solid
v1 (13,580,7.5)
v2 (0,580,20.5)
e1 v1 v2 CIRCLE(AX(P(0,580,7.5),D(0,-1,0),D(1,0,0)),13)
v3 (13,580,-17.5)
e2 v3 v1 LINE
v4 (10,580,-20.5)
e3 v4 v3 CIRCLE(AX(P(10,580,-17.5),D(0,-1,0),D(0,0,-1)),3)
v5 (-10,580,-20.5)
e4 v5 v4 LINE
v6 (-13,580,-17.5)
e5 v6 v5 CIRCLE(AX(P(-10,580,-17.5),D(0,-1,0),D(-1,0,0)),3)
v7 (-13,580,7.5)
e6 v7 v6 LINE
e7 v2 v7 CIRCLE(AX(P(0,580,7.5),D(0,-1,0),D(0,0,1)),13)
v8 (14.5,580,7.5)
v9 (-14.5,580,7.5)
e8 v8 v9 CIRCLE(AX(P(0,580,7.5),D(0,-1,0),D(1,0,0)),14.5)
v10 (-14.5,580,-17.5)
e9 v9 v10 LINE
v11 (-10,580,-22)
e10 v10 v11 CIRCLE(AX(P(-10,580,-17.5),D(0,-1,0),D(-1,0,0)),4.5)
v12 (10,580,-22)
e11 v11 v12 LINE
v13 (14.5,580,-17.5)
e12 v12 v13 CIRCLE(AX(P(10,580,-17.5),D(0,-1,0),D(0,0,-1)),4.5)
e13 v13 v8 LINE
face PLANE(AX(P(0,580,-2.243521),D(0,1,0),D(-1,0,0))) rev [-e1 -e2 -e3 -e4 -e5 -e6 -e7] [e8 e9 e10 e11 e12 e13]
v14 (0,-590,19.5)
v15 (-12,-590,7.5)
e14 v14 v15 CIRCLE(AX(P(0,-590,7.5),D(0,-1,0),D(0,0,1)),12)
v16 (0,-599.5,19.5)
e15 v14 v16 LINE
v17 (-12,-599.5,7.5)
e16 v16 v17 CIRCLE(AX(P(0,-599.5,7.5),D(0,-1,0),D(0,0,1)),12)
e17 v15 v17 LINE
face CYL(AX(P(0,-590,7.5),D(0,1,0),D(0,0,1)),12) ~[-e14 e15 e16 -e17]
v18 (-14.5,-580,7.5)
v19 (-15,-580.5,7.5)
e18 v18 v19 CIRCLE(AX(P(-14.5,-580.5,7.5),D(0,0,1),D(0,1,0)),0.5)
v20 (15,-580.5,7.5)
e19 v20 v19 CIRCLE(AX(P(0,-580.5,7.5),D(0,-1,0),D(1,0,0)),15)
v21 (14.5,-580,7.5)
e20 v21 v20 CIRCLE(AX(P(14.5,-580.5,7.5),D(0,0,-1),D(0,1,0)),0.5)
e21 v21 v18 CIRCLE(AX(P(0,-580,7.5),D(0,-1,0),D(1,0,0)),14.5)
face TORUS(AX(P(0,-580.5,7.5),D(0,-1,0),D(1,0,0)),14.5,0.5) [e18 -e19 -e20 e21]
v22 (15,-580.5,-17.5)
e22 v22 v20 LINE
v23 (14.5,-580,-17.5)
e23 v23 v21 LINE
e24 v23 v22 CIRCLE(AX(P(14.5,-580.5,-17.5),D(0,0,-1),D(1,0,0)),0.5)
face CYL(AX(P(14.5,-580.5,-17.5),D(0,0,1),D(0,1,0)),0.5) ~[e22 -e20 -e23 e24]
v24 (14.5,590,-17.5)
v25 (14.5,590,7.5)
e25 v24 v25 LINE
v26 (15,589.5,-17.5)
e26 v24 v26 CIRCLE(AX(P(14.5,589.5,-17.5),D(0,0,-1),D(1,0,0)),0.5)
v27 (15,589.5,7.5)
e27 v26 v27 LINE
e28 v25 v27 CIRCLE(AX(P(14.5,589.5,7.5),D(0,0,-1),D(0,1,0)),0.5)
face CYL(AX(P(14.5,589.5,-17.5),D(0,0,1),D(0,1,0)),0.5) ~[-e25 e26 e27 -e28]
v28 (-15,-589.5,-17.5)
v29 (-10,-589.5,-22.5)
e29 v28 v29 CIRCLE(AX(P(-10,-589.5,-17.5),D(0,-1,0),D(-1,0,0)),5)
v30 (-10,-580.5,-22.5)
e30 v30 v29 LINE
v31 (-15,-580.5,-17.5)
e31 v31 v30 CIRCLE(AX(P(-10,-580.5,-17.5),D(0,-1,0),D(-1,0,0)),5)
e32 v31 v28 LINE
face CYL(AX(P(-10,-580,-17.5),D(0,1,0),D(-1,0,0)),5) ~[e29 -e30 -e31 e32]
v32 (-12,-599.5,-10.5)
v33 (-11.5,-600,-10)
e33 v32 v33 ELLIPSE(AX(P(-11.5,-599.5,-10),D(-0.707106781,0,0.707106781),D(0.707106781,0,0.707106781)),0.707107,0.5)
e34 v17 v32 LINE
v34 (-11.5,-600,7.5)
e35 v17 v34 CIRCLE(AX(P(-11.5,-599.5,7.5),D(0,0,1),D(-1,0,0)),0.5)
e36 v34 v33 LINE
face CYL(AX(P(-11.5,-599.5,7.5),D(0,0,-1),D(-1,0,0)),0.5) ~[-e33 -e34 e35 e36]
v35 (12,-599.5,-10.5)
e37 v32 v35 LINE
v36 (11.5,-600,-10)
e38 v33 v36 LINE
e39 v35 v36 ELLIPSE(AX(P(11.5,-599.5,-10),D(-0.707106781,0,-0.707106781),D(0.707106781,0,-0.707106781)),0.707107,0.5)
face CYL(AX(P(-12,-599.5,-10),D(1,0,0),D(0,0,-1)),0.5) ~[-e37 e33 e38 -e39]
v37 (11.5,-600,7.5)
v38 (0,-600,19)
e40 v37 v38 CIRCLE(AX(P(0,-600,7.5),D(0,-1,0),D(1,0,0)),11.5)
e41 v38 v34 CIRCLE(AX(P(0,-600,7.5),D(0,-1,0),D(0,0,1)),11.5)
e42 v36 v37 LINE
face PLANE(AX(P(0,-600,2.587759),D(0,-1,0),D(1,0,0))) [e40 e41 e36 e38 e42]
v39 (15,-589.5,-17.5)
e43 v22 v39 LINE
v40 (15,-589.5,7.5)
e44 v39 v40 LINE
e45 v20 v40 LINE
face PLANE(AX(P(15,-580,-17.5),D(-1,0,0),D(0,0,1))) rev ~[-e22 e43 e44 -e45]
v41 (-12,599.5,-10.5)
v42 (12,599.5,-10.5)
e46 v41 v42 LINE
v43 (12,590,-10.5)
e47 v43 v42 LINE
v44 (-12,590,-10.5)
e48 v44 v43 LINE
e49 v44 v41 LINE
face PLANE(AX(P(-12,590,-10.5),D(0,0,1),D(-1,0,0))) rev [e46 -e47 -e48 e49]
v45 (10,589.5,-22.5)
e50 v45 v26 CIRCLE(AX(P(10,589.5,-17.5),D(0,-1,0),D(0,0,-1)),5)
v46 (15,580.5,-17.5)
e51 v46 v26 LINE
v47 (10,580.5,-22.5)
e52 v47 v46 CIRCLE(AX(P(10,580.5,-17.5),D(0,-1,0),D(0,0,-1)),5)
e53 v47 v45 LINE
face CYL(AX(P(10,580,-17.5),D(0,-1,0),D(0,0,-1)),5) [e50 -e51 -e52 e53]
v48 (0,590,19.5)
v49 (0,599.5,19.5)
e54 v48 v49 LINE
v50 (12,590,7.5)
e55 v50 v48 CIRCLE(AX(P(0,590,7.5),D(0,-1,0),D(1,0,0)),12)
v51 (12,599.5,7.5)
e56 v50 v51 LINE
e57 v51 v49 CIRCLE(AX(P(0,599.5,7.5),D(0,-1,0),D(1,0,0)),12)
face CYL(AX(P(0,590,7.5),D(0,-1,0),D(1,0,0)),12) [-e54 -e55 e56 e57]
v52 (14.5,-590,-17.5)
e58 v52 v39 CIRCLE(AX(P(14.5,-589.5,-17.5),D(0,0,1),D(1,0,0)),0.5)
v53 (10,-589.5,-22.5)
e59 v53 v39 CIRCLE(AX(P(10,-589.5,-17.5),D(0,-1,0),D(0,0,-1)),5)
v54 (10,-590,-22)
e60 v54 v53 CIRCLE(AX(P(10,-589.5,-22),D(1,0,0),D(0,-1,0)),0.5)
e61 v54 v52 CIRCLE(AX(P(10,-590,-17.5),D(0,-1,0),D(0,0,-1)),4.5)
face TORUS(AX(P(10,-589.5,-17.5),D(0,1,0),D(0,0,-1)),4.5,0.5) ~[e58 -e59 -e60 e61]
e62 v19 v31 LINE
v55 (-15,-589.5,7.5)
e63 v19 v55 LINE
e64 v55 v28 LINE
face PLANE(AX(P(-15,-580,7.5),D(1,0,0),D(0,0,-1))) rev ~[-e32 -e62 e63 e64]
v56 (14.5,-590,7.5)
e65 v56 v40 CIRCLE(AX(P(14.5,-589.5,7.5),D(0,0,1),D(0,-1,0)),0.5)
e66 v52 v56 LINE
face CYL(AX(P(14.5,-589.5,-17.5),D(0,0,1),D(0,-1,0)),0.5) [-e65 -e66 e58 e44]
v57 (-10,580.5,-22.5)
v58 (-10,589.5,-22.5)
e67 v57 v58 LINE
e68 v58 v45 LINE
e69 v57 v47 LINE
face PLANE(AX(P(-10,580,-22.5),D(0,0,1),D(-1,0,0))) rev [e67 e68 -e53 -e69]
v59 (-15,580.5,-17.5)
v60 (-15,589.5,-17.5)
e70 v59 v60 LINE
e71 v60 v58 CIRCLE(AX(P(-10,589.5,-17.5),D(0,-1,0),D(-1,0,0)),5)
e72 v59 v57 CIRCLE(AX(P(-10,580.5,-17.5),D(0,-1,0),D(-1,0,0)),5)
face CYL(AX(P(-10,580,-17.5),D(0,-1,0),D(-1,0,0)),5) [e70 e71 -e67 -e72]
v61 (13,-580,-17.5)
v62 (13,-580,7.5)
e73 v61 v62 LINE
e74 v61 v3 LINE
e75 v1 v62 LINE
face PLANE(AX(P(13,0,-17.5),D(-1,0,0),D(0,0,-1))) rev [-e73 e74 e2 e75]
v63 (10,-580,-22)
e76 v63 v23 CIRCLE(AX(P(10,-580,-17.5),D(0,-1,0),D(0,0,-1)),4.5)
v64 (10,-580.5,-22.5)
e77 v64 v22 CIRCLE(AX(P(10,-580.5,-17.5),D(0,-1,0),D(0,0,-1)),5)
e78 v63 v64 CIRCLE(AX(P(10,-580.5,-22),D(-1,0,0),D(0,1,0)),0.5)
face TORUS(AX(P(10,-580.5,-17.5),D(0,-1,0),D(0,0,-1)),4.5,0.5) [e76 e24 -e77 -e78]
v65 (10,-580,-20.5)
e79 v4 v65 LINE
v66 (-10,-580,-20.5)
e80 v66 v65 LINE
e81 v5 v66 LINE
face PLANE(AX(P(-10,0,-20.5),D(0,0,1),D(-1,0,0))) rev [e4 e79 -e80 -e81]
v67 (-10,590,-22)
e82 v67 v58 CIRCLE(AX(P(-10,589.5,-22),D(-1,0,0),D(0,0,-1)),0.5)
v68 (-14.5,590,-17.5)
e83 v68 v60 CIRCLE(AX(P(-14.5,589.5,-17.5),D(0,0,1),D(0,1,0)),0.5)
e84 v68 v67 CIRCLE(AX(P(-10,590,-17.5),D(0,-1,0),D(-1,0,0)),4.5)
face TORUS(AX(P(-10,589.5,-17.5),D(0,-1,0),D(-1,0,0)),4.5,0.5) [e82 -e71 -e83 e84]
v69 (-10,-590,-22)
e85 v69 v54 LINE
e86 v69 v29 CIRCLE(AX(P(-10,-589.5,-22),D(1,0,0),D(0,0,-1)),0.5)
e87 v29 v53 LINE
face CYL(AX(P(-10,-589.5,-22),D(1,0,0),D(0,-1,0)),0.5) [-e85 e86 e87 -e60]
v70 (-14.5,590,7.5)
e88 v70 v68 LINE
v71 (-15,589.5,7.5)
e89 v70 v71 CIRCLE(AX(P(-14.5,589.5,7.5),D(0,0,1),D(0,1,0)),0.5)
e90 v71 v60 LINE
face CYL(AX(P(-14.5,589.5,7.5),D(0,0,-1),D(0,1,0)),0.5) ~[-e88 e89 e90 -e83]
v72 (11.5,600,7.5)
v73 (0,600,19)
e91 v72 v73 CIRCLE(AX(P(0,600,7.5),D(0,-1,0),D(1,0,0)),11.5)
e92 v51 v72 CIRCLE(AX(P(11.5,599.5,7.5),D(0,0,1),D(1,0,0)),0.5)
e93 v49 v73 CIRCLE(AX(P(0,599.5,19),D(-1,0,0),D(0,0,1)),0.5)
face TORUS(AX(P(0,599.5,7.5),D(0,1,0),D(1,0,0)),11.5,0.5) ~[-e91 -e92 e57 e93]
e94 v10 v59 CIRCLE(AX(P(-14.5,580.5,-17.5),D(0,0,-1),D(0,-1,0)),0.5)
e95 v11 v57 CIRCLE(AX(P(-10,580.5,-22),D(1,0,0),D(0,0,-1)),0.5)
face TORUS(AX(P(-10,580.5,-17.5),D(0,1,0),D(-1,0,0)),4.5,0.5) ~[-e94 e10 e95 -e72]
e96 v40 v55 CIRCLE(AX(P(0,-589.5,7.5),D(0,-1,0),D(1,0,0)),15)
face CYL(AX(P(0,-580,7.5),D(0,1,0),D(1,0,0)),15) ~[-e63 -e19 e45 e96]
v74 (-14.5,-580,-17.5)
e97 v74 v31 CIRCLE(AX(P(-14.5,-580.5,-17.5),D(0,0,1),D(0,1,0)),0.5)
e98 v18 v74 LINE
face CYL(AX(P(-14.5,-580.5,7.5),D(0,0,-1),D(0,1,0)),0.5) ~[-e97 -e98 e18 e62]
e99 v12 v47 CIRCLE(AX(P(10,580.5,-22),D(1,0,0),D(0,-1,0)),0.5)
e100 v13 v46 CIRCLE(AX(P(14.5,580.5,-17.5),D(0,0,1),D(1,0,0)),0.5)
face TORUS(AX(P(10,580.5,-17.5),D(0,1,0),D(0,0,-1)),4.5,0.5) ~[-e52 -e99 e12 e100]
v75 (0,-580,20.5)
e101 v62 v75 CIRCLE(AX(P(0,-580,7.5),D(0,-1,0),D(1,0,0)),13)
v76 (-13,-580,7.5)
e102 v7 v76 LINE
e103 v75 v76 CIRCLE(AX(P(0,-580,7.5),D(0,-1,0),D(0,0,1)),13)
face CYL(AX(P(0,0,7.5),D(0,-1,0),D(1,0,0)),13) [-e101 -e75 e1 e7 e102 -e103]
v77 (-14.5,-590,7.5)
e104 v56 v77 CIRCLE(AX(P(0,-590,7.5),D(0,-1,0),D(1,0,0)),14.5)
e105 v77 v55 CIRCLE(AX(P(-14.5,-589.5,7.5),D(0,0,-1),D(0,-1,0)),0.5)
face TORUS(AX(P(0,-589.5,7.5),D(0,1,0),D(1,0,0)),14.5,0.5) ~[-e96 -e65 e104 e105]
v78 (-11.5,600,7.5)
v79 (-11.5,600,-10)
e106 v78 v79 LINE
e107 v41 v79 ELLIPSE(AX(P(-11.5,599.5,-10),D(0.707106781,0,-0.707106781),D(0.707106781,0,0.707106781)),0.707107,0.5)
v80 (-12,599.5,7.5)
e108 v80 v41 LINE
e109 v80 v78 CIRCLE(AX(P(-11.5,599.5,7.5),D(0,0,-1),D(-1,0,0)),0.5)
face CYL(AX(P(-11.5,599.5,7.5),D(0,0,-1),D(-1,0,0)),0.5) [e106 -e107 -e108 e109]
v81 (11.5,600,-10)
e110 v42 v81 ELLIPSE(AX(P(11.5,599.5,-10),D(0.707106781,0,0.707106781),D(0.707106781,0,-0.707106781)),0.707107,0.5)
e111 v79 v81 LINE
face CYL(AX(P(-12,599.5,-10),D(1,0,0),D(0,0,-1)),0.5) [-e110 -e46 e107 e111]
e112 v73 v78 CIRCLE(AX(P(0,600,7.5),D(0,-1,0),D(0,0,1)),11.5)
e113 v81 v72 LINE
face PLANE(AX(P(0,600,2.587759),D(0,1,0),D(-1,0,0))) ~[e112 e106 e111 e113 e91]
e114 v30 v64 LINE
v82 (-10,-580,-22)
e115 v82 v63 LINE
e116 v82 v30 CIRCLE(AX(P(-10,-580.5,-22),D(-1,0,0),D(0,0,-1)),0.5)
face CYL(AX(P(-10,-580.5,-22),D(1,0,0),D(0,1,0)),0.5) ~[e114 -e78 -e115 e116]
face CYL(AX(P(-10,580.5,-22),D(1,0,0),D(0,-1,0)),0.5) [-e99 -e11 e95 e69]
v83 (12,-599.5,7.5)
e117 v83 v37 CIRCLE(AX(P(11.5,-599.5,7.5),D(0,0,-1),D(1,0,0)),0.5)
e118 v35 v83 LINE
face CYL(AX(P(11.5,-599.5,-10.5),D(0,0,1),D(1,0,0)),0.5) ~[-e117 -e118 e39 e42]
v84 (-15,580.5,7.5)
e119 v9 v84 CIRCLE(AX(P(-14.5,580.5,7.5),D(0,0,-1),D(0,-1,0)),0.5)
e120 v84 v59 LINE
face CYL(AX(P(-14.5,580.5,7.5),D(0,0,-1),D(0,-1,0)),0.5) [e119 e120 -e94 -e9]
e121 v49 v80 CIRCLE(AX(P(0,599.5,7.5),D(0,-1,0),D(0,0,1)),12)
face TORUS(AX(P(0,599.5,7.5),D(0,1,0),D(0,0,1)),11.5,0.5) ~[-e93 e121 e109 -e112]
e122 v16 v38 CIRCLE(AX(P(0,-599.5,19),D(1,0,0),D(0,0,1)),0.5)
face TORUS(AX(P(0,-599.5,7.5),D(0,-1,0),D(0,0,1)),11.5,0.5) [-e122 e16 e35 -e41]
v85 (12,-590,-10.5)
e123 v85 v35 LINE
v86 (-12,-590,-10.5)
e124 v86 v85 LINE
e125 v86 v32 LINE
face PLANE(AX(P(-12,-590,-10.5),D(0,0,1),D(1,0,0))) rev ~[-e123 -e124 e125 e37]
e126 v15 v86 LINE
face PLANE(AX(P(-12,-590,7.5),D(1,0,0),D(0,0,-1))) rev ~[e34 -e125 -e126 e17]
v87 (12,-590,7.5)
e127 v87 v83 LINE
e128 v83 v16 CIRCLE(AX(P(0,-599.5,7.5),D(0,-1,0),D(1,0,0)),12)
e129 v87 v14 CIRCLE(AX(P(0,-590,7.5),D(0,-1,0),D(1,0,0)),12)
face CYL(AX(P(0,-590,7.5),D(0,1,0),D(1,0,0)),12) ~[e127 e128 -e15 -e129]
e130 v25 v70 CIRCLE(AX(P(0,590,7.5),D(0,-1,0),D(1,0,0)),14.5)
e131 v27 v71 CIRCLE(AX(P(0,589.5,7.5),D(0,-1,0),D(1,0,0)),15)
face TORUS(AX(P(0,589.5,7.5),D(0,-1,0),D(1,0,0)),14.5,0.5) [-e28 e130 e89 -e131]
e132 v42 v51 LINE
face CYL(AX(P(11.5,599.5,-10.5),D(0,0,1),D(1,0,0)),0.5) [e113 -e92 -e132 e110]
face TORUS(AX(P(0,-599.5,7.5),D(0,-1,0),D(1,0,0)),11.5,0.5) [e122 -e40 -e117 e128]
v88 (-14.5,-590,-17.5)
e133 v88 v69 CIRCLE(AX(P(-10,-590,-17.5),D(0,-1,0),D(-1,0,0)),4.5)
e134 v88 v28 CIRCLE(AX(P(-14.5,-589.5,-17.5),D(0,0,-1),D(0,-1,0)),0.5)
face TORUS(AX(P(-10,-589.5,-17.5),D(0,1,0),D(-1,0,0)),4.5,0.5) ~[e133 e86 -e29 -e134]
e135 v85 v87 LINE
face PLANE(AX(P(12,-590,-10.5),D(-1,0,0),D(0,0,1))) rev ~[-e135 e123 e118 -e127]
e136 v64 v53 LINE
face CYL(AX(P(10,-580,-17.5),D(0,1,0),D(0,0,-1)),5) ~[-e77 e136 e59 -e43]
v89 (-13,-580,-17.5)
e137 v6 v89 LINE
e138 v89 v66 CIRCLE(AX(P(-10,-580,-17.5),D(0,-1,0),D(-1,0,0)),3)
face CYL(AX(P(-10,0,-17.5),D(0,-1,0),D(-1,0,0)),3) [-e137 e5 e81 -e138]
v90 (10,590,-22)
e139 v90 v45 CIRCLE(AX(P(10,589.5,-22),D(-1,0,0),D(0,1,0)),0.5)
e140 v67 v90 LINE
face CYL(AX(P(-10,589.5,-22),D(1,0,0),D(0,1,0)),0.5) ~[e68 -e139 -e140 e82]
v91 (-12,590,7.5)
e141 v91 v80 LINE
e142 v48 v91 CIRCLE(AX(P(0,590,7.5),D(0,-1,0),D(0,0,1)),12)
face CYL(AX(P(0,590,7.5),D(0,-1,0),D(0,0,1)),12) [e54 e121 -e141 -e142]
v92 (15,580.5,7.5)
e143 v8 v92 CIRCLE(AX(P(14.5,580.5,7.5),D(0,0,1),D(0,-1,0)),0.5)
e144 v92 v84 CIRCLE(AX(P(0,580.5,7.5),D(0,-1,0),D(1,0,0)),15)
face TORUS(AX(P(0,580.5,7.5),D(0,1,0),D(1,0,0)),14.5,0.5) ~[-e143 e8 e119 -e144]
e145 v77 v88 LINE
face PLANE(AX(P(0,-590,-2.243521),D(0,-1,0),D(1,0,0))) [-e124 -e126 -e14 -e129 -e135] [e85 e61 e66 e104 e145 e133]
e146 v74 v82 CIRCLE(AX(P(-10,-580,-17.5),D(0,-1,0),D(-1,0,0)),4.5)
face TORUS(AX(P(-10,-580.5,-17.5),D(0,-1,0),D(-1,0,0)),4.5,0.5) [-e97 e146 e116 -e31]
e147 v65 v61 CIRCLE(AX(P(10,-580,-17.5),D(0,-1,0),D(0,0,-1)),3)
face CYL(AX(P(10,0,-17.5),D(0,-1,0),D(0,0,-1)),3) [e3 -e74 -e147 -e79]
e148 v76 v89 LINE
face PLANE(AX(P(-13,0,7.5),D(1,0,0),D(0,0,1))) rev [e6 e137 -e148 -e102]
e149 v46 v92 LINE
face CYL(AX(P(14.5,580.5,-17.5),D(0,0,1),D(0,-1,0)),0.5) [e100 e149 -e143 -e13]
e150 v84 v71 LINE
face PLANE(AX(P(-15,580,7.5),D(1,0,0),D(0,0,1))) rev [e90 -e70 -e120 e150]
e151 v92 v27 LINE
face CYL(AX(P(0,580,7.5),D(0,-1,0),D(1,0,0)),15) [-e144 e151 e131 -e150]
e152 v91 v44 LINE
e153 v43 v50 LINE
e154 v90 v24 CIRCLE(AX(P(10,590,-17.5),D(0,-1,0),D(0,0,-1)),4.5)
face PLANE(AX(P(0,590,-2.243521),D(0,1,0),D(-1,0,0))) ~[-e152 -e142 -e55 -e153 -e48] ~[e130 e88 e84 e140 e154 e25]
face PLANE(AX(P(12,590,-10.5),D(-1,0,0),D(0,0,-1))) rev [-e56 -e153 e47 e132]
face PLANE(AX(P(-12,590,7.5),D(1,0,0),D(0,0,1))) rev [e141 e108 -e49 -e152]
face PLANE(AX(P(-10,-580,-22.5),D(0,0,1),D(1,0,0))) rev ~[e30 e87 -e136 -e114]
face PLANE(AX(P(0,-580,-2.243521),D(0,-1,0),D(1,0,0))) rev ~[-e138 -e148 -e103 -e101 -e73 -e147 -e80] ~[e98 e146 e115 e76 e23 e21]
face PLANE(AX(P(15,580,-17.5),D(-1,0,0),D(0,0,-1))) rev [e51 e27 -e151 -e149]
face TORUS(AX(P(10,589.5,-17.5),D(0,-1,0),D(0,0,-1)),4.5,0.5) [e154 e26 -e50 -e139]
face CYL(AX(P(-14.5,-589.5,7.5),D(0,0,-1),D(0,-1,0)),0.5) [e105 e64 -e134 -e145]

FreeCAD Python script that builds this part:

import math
import FreeCAD as App
import Part
import Sketcher

V = App.Vector
Q = App.Units.Quantity


def edges_at(feature, points):
    """Names of the edges that pass closest to the given points."""
    edges = feature.Shape.Edges
    near = lambda p: min(range(len(edges)), key=lambda i: edges[i].distToShape(Part.Vertex(*p))[0])
    return sorted({f"Edge{near(p) + 1}" for p in points})

doc = App.newDocument("Part")
body = doc.addObject("PartDesign::Body", "Body")

# Sketch on XZ plane
sketch1 = body.newObject("Sketcher::SketchObject", "Sketch")
sketch1.AttachmentSupport = (doc.getObject("XZ_Plane"), [""])
sketch1.MapMode = "FlatFace"
sketch1.addGeometry([
    Part.LineSegment(V(13, -17.5, 0), V(13, 7.5, 0)),  # 0
    Part.ArcOfCircle(Part.Circle(V(0, 7.5, 0), V(0, 0, 1), 13), math.radians(0), math.radians(90)),  # 1
    Part.ArcOfCircle(Part.Circle(V(0, 7.5, 0), V(0, 0, 1), 13), math.radians(90), math.radians(180)),  # 2
    Part.LineSegment(V(-13, 7.5, 0), V(-13, -17.5, 0)),  # 3
    Part.ArcOfCircle(Part.Circle(V(-10, -17.5, 0), V(0, 0, 1), 3), math.radians(180), math.radians(270)),  # 4
    Part.LineSegment(V(-10, -20.5, 0), V(10, -20.5, 0)),  # 5
    Part.ArcOfCircle(Part.Circle(V(10, -17.5, 0), V(0, 0, 1), 3), math.radians(-90), math.radians(0)),  # 6
], False)
sketch1.addConstraint([
    Sketcher.Constraint("Tangent", 0, 2, 1, 1),
    Sketcher.Constraint("Tangent", 1, 2, 2, 1),
    Sketcher.Constraint("Tangent", 2, 2, 3, 1),
    Sketcher.Constraint("Tangent", 3, 2, 4, 1),
    Sketcher.Constraint("Tangent", 4, 2, 5, 1),
    Sketcher.Constraint("Tangent", 5, 2, 6, 1),
    Sketcher.Constraint("Tangent", 6, 2, 0, 1),
    Sketcher.Constraint("Vertical", 0),
    Sketcher.Constraint("Vertical", 3),
    Sketcher.Constraint("Horizontal", 5),
    Sketcher.Constraint("Equal", 1, 2),
    Sketcher.Constraint("Equal", 4, 6),
    Sketcher.Constraint("PointOnObject", 1, 3, -2),
    Sketcher.Constraint("PointOnObject", 1, 2, -2),
    Sketcher.Constraint("Radius", 1, Q("13 mm")),
    Sketcher.Constraint("Radius", 4, Q("3 mm")),
    Sketcher.Constraint("DistanceY", 0, 1, 0, 2, Q("25 mm")),
    Sketcher.Constraint("DistanceY", -1, 1, 1, 3, Q("7.5 mm")),
])
pad1 = body.newObject("PartDesign::Pad", "Pad")
pad1.Profile = sketch1
pad1.Length = 580

# Sketch on XZ plane
sketch2 = body.newObject("Sketcher::SketchObject", "Sketch001")
sketch2.AttachmentSupport = (doc.getObject("XZ_Plane"), [""])
sketch2.MapMode = "FlatFace"
sketch2.AttachmentOffset = App.Placement(V(0, 0, 580), App.Rotation())
sketch2.addGeometry([
    Part.ArcOfCircle(Part.Circle(V(10, -18, 0), V(0, 0, 1), 5), math.radians(-90), math.radians(0)),  # 0
    Part.LineSegment(V(15, -18, 0), V(15, 8, 0)),  # 1
    Part.ArcOfCircle(Part.Circle(V(0, 8, 0), V(0, 0, 1), 15), math.radians(0), math.radians(180)),  # 2
    Part.LineSegment(V(-15, 8, 0), V(-15, -18, 0)),  # 3
    Part.ArcOfCircle(Part.Circle(V(-10, -18, 0), V(0, 0, 1), 5), math.radians(180), math.radians(270)),  # 4
    Part.LineSegment(V(-10, -22, 0), V(10, -22, 0)),  # 5
], False)
sketch2.addConstraint([
    Sketcher.Constraint("Tangent", 0, 2, 1, 1),
    Sketcher.Constraint("Tangent", 1, 2, 2, 1),
    Sketcher.Constraint("Tangent", 2, 2, 3, 1),
    Sketcher.Constraint("Tangent", 3, 2, 4, 1),
    Sketcher.Constraint("Tangent", 4, 2, 5, 1),
    Sketcher.Constraint("Tangent", 5, 2, 0, 1),
    Sketcher.Constraint("Vertical", 1),
    Sketcher.Constraint("Vertical", 3),
    Sketcher.Constraint("Horizontal", 5),
    Sketcher.Constraint("Equal", 0, 4),
    Sketcher.Constraint("PointOnObject", 2, 3, -2),
    Sketcher.Constraint("Radius", 0, Q("5 mm")),
    Sketcher.Constraint("Radius", 2, Q("15 mm")),
    Sketcher.Constraint("DistanceY", 1, 1, 1, 2, Q("25 mm")),
    Sketcher.Constraint("DistanceY", 0, 3, -1, 1, Q("17.5 mm")),
])
pad2 = body.newObject("PartDesign::Pad", "Pad001")
pad2.Profile = sketch2
pad2.Length = 10

# Sketch on XZ plane
sketch3 = body.newObject("Sketcher::SketchObject", "Sketch002")
sketch3.AttachmentSupport = (doc.getObject("XZ_Plane"), [""])
sketch3.MapMode = "FlatFace"
sketch3.AttachmentOffset = App.Placement(V(0, 0, 590), App.Rotation())
sketch3.addGeometry([
    Part.LineSegment(V(-12, 8, 0), V(-12, -10, 0)),  # 0
    Part.LineSegment(V(-12, -10, 0), V(12, -10, 0)),  # 1
    Part.LineSegment(V(12, -10, 0), V(12, 8, 0)),  # 2
    Part.ArcOfCircle(Part.Circle(V(0, 8, 0), V(0, 0, 1), 12), math.radians(0), math.radians(90)),  # 3
    Part.ArcOfCircle(Part.Circle(V(0, 8, 0), V(0, 0, 1), 12), math.radians(90), math.radians(180)),  # 4
], False)
sketch3.addConstraint([
    Sketcher.Constraint("Coincident", 0, 2, 1, 1),
    Sketcher.Constraint("Coincident", 1, 2, 2, 1),
    Sketcher.Constraint("Tangent", 2, 2, 3, 1),
    Sketcher.Constraint("Tangent", 3, 2, 4, 1),
    Sketcher.Constraint("Tangent", 4, 2, 0, 1),
    Sketcher.Constraint("Vertical", 0),
    Sketcher.Constraint("Horizontal", 1),
    Sketcher.Constraint("Vertical", 2),
    Sketcher.Constraint("Equal", 3, 4),
    Sketcher.Constraint("PointOnObject", 3, 3, -2),
    Sketcher.Constraint("PointOnObject", 3, 2, -2),
    Sketcher.Constraint("Radius", 3, Q("12 mm")),
    Sketcher.Constraint("DistanceY", 0, 2, 0, 1, Q("18 mm")),
    Sketcher.Constraint("DistanceY", -1, 1, 3, 3, Q("7.5 mm")),
])
pad3 = body.newObject("PartDesign::Pad", "Pad002")
pad3.Profile = sketch3
pad3.Length = 10
doc.recompute()

fillet = body.newObject("PartDesign::Fillet", "Fillet")
fillet.Base = (pad3, edges_at(pad3, [
    (0, -600, -10.5),
    (-12, -600, -1.5),
    (-15, -590, -5),
    (0, -590, 22.5),
    (-15, -580, -5),
]))
fillet.Radius = 0.5
body2 = doc.addObject("PartDesign::Body", "Body001")
doc.recompute()

body2.BaseFeature = body
doc.recompute()

mirroring = doc.addObject("Part::Mirroring", "Mirroring")
mirroring.Source = body
mirroring.Base = V(0, 0, 0)
mirroring.Normal = V(0, -1, 0)
body3 = doc.addObject("PartDesign::Body", "Body002")
body3.BaseFeature = mirroring
boolean = body2.newObject("PartDesign::Boolean", "Boolean")
boolean.Type = "Fuse"
boolean.addObjects([body3])
doc.recompute()
body4 = doc.addObject("PartDesign::Body", "Body003")
doc.recompute()

body4.BaseFeature = body2
doc.recompute()

mirroring2 = doc.addObject("Part::Mirroring", "Mirroring001")
mirroring2.Source = body2
mirroring2.Base = V(0, 0, 0)
mirroring2.Normal = V(0, -1, 0)
body5 = doc.addObject("PartDesign::Body", "Body004")
body5.BaseFeature = mirroring2
boolean2 = body4.newObject("PartDesign::Boolean", "Boolean001")
boolean2.Type = "Fuse"
boolean2.addObjects([body5])
doc.recompute()
mirroring.Visibility = False
mirroring2.Visibility = False

doc.recompute()
